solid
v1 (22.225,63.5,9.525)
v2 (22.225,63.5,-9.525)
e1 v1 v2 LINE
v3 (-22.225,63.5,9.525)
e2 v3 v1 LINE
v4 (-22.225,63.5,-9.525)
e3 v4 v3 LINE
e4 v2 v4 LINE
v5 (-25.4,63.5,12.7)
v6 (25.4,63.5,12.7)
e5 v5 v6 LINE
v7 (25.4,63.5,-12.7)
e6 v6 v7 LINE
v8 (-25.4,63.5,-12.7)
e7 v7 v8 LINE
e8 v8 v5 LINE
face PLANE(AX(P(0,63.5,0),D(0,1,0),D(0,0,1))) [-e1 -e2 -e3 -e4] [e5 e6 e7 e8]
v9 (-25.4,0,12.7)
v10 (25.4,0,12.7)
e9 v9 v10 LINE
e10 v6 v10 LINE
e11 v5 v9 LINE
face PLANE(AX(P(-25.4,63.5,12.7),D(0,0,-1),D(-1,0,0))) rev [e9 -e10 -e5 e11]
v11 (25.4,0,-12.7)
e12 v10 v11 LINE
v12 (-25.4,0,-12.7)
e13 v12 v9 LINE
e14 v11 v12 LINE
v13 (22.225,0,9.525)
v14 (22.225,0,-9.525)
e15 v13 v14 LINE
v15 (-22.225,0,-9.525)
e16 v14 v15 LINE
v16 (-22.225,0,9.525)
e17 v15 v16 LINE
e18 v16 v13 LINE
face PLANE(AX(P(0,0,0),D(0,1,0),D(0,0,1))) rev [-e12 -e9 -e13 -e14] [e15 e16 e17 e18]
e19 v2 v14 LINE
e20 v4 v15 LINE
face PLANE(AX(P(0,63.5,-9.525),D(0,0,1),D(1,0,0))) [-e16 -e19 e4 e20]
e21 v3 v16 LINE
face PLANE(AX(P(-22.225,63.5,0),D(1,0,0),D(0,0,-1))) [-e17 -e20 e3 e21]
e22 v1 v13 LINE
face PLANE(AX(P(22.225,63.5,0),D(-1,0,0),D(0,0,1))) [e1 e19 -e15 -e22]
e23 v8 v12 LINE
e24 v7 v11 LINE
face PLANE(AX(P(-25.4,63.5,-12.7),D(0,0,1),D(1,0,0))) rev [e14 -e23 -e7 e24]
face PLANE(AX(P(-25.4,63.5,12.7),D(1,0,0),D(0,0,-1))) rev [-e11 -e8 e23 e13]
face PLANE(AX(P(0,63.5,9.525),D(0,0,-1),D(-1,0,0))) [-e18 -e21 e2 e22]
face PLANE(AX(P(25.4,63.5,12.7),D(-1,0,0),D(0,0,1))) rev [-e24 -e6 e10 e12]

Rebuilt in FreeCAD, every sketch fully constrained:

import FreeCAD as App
import Part
import Sketcher
from FreeCAD import Vector
Q = App.Units.Quantity


def add_polygon(sketch, points):
    """Adds a closed chain of lines whose ends are joined by coincident constraints."""
    first, n = sketch.GeometryCount, len(points)
    for a, b in zip(points, points[1:] + points[:1]):
        sketch.addGeometry(Part.LineSegment(App.Vector(*a, 0), App.Vector(*b, 0)), False)
    for i in range(n):
        sketch.addConstraint(Sketcher.Constraint("Coincident", first + i, 2, first + (i + 1) % n, 1))

doc = App.newDocument("Part")
body = doc.addObject("PartDesign::Body", "Body")

sketch1 = body.newObject("Sketcher::SketchObject", "Sketch")
sketch1.AttachmentSupport = (doc.getObject("XZ_Plane"), [""])
sketch1.MapMode = "FlatFace"
add_polygon(sketch1, [(-25, -13), (-25, 13), (25, 13), (25, -13)])
add_polygon(sketch1, [(22, 10), (-22, 10), (-22, -10), (22, -10)])
sketch1.addConstraint([
    Sketcher.Constraint("Vertical", 0),
    Sketcher.Constraint("Horizontal", 1),
    Sketcher.Constraint("Vertical", 2),
    Sketcher.Constraint("Horizontal", 3),
    Sketcher.Constraint("Horizontal", 4),
    Sketcher.Constraint("Vertical", 5),
    Sketcher.Constraint("Horizontal", 6),
    Sketcher.Constraint("Vertical", 7),
    Sketcher.Constraint("Symmetric", 0, 2, 2, 2, -1, 1),
    Sketcher.Constraint("Symmetric", 4, 2, 6, 2, -1, 1),
    Sketcher.Constraint("DistanceX", 1, 1, 1, 2, Q("2 in")),
    Sketcher.Constraint("DistanceY", 0, 1, 0, 2, Q("1 in")),
    Sketcher.Constraint("DistanceX", 4, 2, 4, 1, Q("1.75 in")),
    Sketcher.Constraint("DistanceY", 5, 2, 5, 1, Q("0.75 in")),
])
pad1 = body.newObject("PartDesign::Pad", "Pad")
pad1.Profile = sketch1
pad1.Length = Q("2.5 in")
pad1.Reversed = True

doc.recompute()
